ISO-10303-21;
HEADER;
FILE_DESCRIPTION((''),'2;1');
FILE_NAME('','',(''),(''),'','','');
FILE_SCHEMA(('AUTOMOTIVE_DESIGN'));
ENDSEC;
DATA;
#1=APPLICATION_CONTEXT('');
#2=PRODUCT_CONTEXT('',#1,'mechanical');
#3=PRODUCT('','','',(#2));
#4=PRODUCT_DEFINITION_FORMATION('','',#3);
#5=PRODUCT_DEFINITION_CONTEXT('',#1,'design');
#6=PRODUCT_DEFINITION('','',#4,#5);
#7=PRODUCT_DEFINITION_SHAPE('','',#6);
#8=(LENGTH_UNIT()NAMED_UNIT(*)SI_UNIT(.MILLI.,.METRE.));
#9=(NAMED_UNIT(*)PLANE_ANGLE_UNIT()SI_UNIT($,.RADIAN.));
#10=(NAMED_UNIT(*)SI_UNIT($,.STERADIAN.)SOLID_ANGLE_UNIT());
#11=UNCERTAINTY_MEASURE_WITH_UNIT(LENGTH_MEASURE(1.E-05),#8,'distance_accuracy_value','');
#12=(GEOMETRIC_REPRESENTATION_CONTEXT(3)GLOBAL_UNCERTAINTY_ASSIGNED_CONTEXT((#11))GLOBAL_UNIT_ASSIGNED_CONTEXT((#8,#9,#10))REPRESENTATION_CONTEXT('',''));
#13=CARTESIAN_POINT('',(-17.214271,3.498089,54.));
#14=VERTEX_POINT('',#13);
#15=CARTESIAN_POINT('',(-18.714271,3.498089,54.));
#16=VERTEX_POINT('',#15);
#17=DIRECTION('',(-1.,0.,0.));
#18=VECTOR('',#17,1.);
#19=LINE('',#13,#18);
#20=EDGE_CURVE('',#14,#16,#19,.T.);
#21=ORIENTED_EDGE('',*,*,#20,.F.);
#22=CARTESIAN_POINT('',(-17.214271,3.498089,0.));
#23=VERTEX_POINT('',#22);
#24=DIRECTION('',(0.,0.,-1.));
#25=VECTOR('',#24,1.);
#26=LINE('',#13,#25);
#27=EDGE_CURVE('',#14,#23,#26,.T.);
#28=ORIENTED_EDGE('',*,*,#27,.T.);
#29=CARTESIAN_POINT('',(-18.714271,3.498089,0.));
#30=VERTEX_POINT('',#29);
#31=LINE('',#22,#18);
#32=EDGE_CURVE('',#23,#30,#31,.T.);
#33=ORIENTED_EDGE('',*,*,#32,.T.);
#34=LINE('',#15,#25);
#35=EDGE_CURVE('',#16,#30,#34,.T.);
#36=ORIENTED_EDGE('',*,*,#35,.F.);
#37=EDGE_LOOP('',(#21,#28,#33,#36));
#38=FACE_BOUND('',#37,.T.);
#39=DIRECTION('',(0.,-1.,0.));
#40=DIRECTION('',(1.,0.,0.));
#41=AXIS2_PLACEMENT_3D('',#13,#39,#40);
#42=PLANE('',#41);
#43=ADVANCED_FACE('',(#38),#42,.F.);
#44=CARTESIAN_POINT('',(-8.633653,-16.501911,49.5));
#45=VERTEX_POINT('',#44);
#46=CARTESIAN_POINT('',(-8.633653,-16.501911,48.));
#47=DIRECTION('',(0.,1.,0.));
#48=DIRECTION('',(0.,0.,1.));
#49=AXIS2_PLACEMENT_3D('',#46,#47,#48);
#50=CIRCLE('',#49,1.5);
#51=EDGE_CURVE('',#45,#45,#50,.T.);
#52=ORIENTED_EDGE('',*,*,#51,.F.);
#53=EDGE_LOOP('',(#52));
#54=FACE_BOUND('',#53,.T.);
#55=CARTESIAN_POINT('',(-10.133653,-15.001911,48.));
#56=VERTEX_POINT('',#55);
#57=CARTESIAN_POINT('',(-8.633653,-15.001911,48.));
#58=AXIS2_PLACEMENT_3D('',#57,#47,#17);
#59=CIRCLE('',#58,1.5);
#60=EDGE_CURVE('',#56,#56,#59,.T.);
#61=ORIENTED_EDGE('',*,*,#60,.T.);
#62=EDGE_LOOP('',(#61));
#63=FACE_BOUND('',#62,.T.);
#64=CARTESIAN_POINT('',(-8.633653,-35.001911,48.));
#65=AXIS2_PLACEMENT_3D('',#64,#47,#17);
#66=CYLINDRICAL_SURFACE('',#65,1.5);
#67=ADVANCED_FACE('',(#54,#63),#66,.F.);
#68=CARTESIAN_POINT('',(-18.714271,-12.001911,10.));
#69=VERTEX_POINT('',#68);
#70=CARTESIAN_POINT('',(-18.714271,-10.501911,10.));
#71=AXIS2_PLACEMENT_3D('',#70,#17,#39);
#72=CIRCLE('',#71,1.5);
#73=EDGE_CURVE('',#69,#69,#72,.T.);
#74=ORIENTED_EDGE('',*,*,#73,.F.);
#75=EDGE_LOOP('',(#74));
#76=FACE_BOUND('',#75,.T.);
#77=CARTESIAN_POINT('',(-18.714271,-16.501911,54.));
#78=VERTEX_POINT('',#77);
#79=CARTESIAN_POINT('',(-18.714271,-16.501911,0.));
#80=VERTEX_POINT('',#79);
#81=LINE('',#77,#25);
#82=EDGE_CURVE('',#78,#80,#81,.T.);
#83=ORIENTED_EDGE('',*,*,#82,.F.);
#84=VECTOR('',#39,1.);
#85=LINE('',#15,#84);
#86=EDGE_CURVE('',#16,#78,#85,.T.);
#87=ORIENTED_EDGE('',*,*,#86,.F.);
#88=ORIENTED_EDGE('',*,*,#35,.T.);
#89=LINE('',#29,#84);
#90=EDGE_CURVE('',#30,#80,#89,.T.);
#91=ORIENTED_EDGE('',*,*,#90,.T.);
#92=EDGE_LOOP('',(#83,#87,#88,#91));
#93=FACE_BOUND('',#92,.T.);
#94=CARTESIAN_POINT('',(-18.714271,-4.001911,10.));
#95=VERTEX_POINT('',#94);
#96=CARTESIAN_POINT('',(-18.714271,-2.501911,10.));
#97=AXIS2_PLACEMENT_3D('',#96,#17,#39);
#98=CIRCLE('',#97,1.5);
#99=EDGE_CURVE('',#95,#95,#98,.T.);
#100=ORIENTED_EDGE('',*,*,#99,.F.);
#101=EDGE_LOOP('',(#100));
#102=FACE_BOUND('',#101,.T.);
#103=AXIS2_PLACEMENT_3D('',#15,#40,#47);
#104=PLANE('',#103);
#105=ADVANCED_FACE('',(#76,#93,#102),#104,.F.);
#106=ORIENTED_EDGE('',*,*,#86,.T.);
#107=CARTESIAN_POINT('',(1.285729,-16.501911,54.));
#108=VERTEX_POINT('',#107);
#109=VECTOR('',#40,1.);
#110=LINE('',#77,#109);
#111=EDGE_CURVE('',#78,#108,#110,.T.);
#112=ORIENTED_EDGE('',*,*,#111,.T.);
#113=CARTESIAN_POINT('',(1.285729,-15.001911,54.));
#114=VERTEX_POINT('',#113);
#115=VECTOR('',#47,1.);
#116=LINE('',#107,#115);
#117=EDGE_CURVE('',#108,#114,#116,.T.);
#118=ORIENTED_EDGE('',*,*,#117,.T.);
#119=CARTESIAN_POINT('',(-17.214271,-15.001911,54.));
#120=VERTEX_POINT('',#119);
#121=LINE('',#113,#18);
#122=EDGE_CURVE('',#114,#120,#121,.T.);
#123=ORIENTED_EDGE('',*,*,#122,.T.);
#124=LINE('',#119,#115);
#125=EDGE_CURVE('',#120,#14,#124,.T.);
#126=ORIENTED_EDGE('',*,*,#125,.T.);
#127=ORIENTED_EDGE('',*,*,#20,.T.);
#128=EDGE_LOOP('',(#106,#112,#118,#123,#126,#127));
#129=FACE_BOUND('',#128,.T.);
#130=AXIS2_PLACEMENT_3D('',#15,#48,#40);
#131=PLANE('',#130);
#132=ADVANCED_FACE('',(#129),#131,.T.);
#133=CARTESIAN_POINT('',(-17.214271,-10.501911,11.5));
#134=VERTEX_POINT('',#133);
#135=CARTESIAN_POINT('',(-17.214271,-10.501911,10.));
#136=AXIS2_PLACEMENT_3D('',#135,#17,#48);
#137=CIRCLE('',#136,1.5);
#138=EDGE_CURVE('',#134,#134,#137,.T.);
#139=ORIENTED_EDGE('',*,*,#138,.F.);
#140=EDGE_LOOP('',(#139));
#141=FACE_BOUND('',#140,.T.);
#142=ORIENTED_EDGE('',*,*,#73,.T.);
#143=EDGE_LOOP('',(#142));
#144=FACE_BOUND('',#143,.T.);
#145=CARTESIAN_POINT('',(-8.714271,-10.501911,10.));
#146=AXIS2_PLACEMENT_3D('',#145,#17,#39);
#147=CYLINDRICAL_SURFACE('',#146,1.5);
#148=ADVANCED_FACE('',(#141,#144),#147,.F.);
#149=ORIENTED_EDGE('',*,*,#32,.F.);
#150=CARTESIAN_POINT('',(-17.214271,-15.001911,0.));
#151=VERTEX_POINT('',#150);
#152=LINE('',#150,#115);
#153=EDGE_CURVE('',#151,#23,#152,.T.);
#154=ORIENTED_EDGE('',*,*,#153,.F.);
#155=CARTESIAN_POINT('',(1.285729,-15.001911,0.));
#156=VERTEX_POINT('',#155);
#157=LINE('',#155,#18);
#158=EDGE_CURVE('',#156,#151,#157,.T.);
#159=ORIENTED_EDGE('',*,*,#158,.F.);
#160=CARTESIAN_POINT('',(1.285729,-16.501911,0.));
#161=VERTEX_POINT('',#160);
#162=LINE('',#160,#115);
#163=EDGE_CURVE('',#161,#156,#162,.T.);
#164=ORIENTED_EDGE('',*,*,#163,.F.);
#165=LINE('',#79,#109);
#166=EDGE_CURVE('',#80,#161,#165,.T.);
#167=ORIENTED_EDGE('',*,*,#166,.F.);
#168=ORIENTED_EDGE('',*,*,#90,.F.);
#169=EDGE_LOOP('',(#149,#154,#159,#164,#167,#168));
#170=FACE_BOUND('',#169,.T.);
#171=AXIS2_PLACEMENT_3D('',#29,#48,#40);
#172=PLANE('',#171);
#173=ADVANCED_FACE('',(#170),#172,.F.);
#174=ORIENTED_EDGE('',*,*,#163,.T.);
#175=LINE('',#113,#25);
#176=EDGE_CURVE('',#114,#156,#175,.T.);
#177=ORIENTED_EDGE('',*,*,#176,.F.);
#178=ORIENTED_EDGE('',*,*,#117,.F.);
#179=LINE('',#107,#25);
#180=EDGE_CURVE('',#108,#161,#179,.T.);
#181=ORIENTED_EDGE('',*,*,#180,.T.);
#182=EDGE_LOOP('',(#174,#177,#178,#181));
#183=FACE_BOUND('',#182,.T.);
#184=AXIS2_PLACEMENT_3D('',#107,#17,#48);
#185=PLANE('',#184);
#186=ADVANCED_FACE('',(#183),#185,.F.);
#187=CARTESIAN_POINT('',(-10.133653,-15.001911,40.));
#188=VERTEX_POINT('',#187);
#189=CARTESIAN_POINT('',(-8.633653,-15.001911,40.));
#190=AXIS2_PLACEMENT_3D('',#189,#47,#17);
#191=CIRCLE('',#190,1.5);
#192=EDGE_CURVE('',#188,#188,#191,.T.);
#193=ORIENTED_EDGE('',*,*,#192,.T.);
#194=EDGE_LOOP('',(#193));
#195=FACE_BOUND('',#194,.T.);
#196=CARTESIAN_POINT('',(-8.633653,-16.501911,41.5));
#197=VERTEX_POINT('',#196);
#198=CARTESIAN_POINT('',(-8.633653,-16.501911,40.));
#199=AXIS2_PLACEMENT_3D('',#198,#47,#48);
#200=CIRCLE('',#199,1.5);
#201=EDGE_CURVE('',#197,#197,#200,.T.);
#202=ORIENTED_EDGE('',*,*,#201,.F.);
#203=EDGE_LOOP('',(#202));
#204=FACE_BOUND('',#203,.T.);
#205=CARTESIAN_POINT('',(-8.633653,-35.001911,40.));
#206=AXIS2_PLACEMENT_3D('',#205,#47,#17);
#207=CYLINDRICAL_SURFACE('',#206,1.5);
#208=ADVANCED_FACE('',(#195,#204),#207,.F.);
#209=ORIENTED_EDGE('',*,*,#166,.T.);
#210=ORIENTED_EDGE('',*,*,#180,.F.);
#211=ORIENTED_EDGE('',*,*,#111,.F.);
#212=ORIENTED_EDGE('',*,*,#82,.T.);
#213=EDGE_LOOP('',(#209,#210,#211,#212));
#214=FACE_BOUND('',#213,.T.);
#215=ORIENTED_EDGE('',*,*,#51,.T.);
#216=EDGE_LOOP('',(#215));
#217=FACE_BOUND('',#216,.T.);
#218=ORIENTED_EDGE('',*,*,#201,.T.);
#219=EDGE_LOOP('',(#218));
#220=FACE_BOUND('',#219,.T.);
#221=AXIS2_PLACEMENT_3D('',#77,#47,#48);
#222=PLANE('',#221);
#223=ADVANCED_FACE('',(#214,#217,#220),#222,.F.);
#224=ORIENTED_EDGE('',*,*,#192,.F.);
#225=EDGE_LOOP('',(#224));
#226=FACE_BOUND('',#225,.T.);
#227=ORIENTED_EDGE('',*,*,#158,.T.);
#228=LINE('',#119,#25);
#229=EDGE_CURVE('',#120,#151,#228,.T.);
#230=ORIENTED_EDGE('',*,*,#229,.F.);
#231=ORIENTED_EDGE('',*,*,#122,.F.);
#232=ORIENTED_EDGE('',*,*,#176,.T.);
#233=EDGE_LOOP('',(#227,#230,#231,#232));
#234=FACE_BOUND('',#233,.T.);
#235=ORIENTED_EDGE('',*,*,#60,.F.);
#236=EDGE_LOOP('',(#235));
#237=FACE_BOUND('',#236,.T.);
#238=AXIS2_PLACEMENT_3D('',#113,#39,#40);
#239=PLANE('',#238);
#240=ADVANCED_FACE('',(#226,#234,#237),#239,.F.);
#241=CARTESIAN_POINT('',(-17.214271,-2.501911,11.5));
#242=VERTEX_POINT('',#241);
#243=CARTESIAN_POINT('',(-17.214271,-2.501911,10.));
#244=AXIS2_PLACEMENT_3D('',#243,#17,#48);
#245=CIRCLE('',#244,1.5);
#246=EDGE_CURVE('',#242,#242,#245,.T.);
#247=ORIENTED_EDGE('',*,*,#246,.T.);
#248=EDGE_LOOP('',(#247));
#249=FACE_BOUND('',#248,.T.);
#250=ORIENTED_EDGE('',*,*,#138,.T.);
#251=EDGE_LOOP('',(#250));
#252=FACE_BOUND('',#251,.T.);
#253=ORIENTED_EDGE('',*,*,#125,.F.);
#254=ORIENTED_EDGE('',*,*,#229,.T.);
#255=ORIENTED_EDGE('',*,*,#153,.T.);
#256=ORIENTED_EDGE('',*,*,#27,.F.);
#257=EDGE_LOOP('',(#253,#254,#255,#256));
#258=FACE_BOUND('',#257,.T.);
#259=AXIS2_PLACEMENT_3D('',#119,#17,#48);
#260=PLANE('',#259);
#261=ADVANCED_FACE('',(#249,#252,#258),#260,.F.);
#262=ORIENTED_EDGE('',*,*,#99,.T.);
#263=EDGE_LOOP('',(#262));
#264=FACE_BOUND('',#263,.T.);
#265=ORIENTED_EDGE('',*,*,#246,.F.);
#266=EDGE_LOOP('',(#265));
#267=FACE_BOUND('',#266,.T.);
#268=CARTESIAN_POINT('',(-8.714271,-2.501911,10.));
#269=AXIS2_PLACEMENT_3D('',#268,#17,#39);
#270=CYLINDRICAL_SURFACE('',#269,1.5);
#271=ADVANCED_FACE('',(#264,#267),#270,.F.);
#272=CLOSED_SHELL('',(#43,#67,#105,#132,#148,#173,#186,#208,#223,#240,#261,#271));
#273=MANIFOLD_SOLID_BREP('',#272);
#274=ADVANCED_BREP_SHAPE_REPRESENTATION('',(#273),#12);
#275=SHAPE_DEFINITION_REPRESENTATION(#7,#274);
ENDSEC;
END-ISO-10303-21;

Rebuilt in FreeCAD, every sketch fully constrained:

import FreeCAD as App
import Part
import Sketcher
from FreeCAD import Vector
Q = App.Units.Quantity


def add_polygon(sketch, points):
    """Adds a closed chain of lines whose ends are joined by coincident constraints."""
    first, n = sketch.GeometryCount, len(points)
    for a, b in zip(points, points[1:] + points[:1]):
        sketch.addGeometry(Part.LineSegment(App.Vector(*a, 0), App.Vector(*b, 0)), False)
    for i in range(n):
        sketch.addConstraint(Sketcher.Constraint("Coincident", first + i, 2, first + (i + 1) % n, 1))

doc = App.newDocument("Part")
body = doc.addObject("PartDesign::Body", "Body")

sketch1 = body.newObject("Sketcher::SketchObject", "Sketch")
sketch1.AttachmentSupport = (doc.getObject("XY_Plane"), [""])
sketch1.MapMode = "FlatFace"
add_polygon(sketch1, [(-18.714271, 3.498089), (-18.714271, -16.501911), (1.285729, -16.501911), (1.285729, -15.001911), (-17.214271, -15.001911), (-17.214271, 3.498089)])
sketch1.addConstraint([
    Sketcher.Constraint("Vertical", 0),
    Sketcher.Constraint("Horizontal", 1),
    Sketcher.Constraint("Vertical", 2),
    Sketcher.Constraint("Horizontal", 3),
    Sketcher.Constraint("Vertical", 4),
    Sketcher.Constraint("Horizontal", 5),
    Sketcher.Constraint("Equal", 1, 0),
    Sketcher.Constraint("Equal", 5, 2),
    Sketcher.Constraint("DistanceX", 1, 1, 1, 2, Q("20 mm")),
    Sketcher.Constraint("DistanceX", 3, 2, 3, 1, Q("18.5 mm")),
    Sketcher.Constraint("DistanceX", 0, 2, -1, 1, Q("18.714271 mm")),
    Sketcher.Constraint("DistanceY", 0, 2, -1, 1, Q("16.501911 mm")),
])
pad1 = body.newObject("PartDesign::Pad", "Pad")
pad1.Profile = sketch1
pad1.Length = 54

sketch2 = body.newObject("Sketcher::SketchObject", "Sketch001")
sketch2.AttachmentSupport = (doc.getObject("XZ_Plane"), [""])
sketch2.MapMode = "FlatFace"
sketch2.AttachmentOffset = App.Placement(Vector(0, 0, 15.001911), App.Rotation())
sketch2.addGeometry([
    Part.Circle(Vector(-8.633653, 48, 0), Vector(0, 0, 1), 1.5),
    Part.Circle(Vector(-8.633653, 40, 0), Vector(0, 0, 1), 1.5),
], False)
sketch2.addConstraint([
    Sketcher.Constraint("Equal", 0, 1),
    Sketcher.Constraint("Vertical", 0, 3, 1, 3),
    Sketcher.Constraint("Diameter", 0, Q("3 mm")),
    Sketcher.Constraint("DistanceY", -1, 1, 0, 3, Q("48 mm")),
    Sketcher.Constraint("DistanceY", -1, 1, 1, 3, Q("40 mm")),
    Sketcher.Constraint("DistanceX", 0, 3, -1, 1, Q("8.633653 mm")),
])
pocket1 = body.newObject("PartDesign::Pocket", "Pocket")
pocket1.Profile = sketch2
pocket1.Length = 20
pocket1.Reversed = True

sketch3 = body.newObject("Sketcher::SketchObject", "Sketch002")
sketch3.AttachmentSupport = (doc.getObject("YZ_Plane"), [""])
sketch3.MapMode = "FlatFace"
sketch3.AttachmentOffset = App.Placement(Vector(0, 0, -18.714271), App.Rotation())
sketch3.addGeometry([
    Part.Circle(Vector(-2.501911, 10, 0), Vector(0, 0, 1), 1.5),
    Part.Circle(Vector(-10.501911, 10, 0), Vector(0, 0, 1), 1.5),
], False)
sketch3.addConstraint([
    Sketcher.Constraint("Equal", 0, 1),
    Sketcher.Constraint("Horizontal", 0, 3, 1, 3),
    Sketcher.Constraint("Diameter", 0, Q("3 mm")),
    Sketcher.Constraint("DistanceY", -1, 1, 0, 3, Q("10 mm")),
    Sketcher.Constraint("DistanceX", 1, 3, 0, 3, Q("8 mm")),
    Sketcher.Constraint("DistanceX", 0, 3, -1, 1, Q("2.501911 mm")),
])
pocket2 = body.newObject("PartDesign::Pocket", "Pocket001")
pocket2.Profile = sketch3
pocket2.Length = 10
pocket2.Reversed = True

doc.recompute()
